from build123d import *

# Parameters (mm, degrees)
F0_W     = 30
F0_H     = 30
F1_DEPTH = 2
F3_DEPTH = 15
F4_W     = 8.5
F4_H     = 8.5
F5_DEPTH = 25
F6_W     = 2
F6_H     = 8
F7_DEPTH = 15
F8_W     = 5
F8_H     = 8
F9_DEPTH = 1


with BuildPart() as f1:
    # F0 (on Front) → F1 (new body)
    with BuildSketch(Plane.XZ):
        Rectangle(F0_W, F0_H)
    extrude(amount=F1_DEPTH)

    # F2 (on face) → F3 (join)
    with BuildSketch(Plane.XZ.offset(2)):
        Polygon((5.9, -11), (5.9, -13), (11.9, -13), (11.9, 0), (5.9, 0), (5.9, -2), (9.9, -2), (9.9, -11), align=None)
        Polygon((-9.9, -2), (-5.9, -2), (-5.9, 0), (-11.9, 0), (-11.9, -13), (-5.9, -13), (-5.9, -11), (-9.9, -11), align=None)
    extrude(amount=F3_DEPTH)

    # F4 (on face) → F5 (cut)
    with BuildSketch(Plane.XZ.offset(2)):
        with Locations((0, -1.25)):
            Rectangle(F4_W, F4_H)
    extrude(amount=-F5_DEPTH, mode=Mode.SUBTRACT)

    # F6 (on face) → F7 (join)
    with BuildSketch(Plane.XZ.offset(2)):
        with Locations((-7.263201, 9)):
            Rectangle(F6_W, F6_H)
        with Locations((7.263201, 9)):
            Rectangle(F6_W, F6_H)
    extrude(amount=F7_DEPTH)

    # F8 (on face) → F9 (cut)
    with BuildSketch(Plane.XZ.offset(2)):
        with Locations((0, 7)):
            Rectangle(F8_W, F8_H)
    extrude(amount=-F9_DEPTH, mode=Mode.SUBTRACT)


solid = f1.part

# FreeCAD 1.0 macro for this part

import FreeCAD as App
import Part
import Sketcher
from FreeCAD import Vector


def add_polygon(sketch, points):
    """Adds a closed chain of lines whose ends are joined by coincident constraints."""
    first, n = sketch.GeometryCount, len(points)
    for a, b in zip(points, points[1:] + points[:1]):
        sketch.addGeometry(Part.LineSegment(App.Vector(*a, 0), App.Vector(*b, 0)), False)
    for i in range(n):
        sketch.addConstraint(Sketcher.Constraint("Coincident", first + i, 2, first + (i + 1) % n, 1))

doc = App.newDocument("Part")
params = doc.addObject("Spreadsheet::Sheet", "Params")
for row, (alias, value) in enumerate([
    ("sketch1_width", "30 mm"),
    ("pad1_length", "2 mm"),
    ("sketch2_width", "6 mm"),
    ("sketch2_width2", "4 mm"),
    ("sketch2_height", "2 mm"),
    ("sketch2_height2", "13 mm"),
    ("pad2_length", "15 mm"),
    ("sketch3_width", "8.5 mm"),
    ("pocket1_length", "25 mm"),
    ("sketch4_width", "2 mm"),
    ("sketch4_height", "8 mm"),
    ("pad3_length", "15 mm"),
    ("sketch5_width", "5 mm"),
    ("sketch5_height", "8 mm"),
    ("pocket2_length", "1 mm"),
], start=1):
    params.set(f"A{row}", alias)
    params.set(f"B{row}", "=" + value)
    params.setAlias(f"B{row}", alias)

body = doc.addObject("PartDesign::Body", "Body")

sketch1 = body.newObject("Sketcher::SketchObject", "Sketch")
sketch1.AttachmentSupport = (doc.getObject("XZ_Plane"), [""])
sketch1.MapMode = "FlatFace"
add_polygon(sketch1, [(-15, 15), (-15, -15), (15, -15), (15, 15)])
sketch1.addConstraint([
    Sketcher.Constraint("Vertical", 0),
    Sketcher.Constraint("Horizontal", 1),
    Sketcher.Constraint("Vertical", 2),
    Sketcher.Constraint("Horizontal", 3),
    Sketcher.Constraint("Symmetric", 0, 2, 2, 2, -1, 1),
    Sketcher.Constraint("Equal", 3, 0),
    Sketcher.Constraint("DistanceX", 1, 1, 1, 2, 30.0),
])
sketch1.setExpression("Constraints[10]", "Params.sketch1_width")
pad1 = body.newObject("PartDesign::Pad", "Pad")
pad1.Profile = sketch1
pad1.setExpression("Length", "Params.pad1_length")

sketch2 = body.newObject("Sketcher::SketchObject", "Sketch001")
sketch2.AttachmentSupport = (doc.getObject("XZ_Plane"), [""])
sketch2.MapMode = "FlatFace"
sketch2.AttachmentOffset = App.Placement(Vector(0, 0, 2), App.Rotation())
add_polygon(sketch2, [(5.9, -11), (5.9, -13), (11.9, -13), (11.9, 0), (5.9, 0), (5.9, -2), (9.9, -2), (9.9, -11)])
add_polygon(sketch2, [(-9.9, -2), (-5.9, -2), (-5.9, 0), (-11.9, 0), (-11.9, -13), (-5.9, -13), (-5.9, -11), (-9.9, -11)])
sketch2.addConstraint([
    Sketcher.Constraint("Vertical", 0),
    Sketcher.Constraint("Horizontal", 1),
    Sketcher.Constraint("Vertical", 2),
    Sketcher.Constraint("Horizontal", 3),
    Sketcher.Constraint("Vertical", 4),
    Sketcher.Constraint("Horizontal", 5),
    Sketcher.Constraint("Vertical", 6),
    Sketcher.Constraint("Horizontal", 7),
    Sketcher.Constraint("Horizontal", 8),
    Sketcher.Constraint("Vertical", 9),
    Sketcher.Constraint("Horizontal", 10),
    Sketcher.Constraint("Vertical", 11),
    Sketcher.Constraint("Horizontal", 12),
    Sketcher.Constraint("Vertical", 13),
    Sketcher.Constraint("Horizontal", 14),
    Sketcher.Constraint("Vertical", 15),
    Sketcher.Constraint("Symmetric", 3, 2, 9, 2, -1, 1),
    Sketcher.Constraint("Symmetric", 2, 2, 10, 2, -2),
    Sketcher.Constraint("Symmetric", 0, 2, 12, 2, -2),
    Sketcher.Constraint("Symmetric", 6, 2, 14, 2, -2),
    Sketcher.Constraint("Horizontal", 5, 2, 8, 2),
    Sketcher.Constraint("Vertical", 0, 2, 3, 2),
    Sketcher.Constraint("Equal", 0, 4),
    Sketcher.Constraint("DistanceX", 1, 1, 1, 2, 6.0),
    Sketcher.Constraint("DistanceX", 5, 1, 5, 2, 4.0),
    Sketcher.Constraint("DistanceY", 0, 2, 0, 1, 2.0),
    Sketcher.Constraint("DistanceY", 2, 1, 2, 2, 13.0),
    Sketcher.Constraint("DistanceX", -1, 1, 0, 2, 5.9),
])
sketch2.setExpression("Constraints[39]", "Params.sketch2_width")
sketch2.setExpression("Constraints[40]", "Params.sketch2_width2")
sketch2.setExpression("Constraints[41]", "Params.sketch2_height")
sketch2.setExpression("Constraints[42]", "Params.sketch2_height2")
pad2 = body.newObject("PartDesign::Pad", "Pad001")
pad2.Profile = sketch2
pad2.setExpression("Length", "Params.pad2_length")

sketch3 = body.newObject("Sketcher::SketchObject", "Sketch002")
sketch3.AttachmentSupport = (doc.getObject("XZ_Plane"), [""])
sketch3.MapMode = "FlatFace"
sketch3.AttachmentOffset = App.Placement(Vector(0, 0, 2), App.Rotation())
add_polygon(sketch3, [(-4, 3), (-4, -6), (4, -6), (4, 3)])
sketch3.addConstraint([
    Sketcher.Constraint("Vertical", 0),
    Sketcher.Constraint("Horizontal", 1),
    Sketcher.Constraint("Vertical", 2),
    Sketcher.Constraint("Horizontal", 3),
    Sketcher.Constraint("Equal", 3, 0),
    Sketcher.Constraint("DistanceX", 1, 1, 1, 2, 8.5),
    Sketcher.Constraint("DistanceY", -1, 1, 2, 2, 3.0),
    Sketcher.Constraint("DistanceX", 0, 2, -1, 1, 4.25),
])
sketch3.setExpression("Constraints[9]", "Params.sketch3_width")
pocket1 = body.newObject("PartDesign::Pocket", "Pocket")
pocket1.Profile = sketch3
pocket1.setExpression("Length", "Params.pocket1_length")

sketch4 = body.newObject("Sketcher::SketchObject", "Sketch003")
sketch4.AttachmentSupport = (doc.getObject("XZ_Plane"), [""])
sketch4.MapMode = "FlatFace"
sketch4.AttachmentOffset = App.Placement(Vector(0, 0, 2), App.Rotation())
add_polygon(sketch4, [(-8.3, 13), (-8.3, 5), (-6.3, 5), (-6.3, 13)])
add_polygon(sketch4, [(6.3, 13), (6.3, 5), (8.3, 5), (8.3, 13)])
sketch4.addConstraint([
    Sketcher.Constraint("Vertical", 0),
    Sketcher.Constraint("Horizontal", 1),
    Sketcher.Constraint("Vertical", 2),
    Sketcher.Constraint("Horizontal", 3),
    Sketcher.Constraint("Vertical", 4),
    Sketcher.Constraint("Horizontal", 5),
    Sketcher.Constraint("Vertical", 6),
    Sketcher.Constraint("Horizontal", 7),
    Sketcher.Constraint("Symmetric", 1, 2, 4, 2, -2),
    Sketcher.Constraint("Symmetric", 3, 2, 6, 2, -2),
    Sketcher.Constraint("DistanceX", 1, 1, 1, 2, 2.0),
    Sketcher.Constraint("DistanceY", 0, 2, 0, 1, 8.0),
    Sketcher.Constraint("DistanceY", -1, 1, 0, 2, 5.0),
    Sketcher.Constraint("DistanceX", 0, 2, -1, 1, 8.263201),
])
sketch4.setExpression("Constraints[18]", "Params.sketch4_width")
sketch4.setExpression("Constraints[19]", "Params.sketch4_height")
pad3 = body.newObject("PartDesign::Pad", "Pad002")
pad3.Profile = sketch4
pad3.setExpression("Length", "Params.pad3_length")

sketch5 = body.newObject("Sketcher::SketchObject", "Sketch004")
sketch5.AttachmentSupport = (doc.getObject("XZ_Plane"), [""])
sketch5.MapMode = "FlatFace"
sketch5.AttachmentOffset = App.Placement(Vector(0, 0, 2), App.Rotation())
add_polygon(sketch5, [(-2, 11), (-2, 3), (2, 3), (2, 11)])
sketch5.addConstraint([
    Sketcher.Constraint("Vertical", 0),
    Sketcher.Constraint("Horizontal", 1),
    Sketcher.Constraint("Vertical", 2),
    Sketcher.Constraint("Horizontal", 3),
    Sketcher.Constraint("DistanceX", 1, 1, 1, 2, 5.0),
    Sketcher.Constraint("DistanceY", 0, 2, 0, 1, 8.0),
    Sketcher.Constraint("DistanceY", -1, 1, 0, 2, 3.0),
    Sketcher.Constraint("DistanceX", 0, 2, -1, 1, 2.5),
])
sketch5.setExpression("Constraints[8]", "Params.sketch5_width")
sketch5.setExpression("Constraints[9]", "Params.sketch5_height")
pocket2 = body.newObject("PartDesign::Pocket", "Pocket001")
pocket2.Profile = sketch5
pocket2.setExpression("Length", "Params.pocket2_length")

doc.recompute()
